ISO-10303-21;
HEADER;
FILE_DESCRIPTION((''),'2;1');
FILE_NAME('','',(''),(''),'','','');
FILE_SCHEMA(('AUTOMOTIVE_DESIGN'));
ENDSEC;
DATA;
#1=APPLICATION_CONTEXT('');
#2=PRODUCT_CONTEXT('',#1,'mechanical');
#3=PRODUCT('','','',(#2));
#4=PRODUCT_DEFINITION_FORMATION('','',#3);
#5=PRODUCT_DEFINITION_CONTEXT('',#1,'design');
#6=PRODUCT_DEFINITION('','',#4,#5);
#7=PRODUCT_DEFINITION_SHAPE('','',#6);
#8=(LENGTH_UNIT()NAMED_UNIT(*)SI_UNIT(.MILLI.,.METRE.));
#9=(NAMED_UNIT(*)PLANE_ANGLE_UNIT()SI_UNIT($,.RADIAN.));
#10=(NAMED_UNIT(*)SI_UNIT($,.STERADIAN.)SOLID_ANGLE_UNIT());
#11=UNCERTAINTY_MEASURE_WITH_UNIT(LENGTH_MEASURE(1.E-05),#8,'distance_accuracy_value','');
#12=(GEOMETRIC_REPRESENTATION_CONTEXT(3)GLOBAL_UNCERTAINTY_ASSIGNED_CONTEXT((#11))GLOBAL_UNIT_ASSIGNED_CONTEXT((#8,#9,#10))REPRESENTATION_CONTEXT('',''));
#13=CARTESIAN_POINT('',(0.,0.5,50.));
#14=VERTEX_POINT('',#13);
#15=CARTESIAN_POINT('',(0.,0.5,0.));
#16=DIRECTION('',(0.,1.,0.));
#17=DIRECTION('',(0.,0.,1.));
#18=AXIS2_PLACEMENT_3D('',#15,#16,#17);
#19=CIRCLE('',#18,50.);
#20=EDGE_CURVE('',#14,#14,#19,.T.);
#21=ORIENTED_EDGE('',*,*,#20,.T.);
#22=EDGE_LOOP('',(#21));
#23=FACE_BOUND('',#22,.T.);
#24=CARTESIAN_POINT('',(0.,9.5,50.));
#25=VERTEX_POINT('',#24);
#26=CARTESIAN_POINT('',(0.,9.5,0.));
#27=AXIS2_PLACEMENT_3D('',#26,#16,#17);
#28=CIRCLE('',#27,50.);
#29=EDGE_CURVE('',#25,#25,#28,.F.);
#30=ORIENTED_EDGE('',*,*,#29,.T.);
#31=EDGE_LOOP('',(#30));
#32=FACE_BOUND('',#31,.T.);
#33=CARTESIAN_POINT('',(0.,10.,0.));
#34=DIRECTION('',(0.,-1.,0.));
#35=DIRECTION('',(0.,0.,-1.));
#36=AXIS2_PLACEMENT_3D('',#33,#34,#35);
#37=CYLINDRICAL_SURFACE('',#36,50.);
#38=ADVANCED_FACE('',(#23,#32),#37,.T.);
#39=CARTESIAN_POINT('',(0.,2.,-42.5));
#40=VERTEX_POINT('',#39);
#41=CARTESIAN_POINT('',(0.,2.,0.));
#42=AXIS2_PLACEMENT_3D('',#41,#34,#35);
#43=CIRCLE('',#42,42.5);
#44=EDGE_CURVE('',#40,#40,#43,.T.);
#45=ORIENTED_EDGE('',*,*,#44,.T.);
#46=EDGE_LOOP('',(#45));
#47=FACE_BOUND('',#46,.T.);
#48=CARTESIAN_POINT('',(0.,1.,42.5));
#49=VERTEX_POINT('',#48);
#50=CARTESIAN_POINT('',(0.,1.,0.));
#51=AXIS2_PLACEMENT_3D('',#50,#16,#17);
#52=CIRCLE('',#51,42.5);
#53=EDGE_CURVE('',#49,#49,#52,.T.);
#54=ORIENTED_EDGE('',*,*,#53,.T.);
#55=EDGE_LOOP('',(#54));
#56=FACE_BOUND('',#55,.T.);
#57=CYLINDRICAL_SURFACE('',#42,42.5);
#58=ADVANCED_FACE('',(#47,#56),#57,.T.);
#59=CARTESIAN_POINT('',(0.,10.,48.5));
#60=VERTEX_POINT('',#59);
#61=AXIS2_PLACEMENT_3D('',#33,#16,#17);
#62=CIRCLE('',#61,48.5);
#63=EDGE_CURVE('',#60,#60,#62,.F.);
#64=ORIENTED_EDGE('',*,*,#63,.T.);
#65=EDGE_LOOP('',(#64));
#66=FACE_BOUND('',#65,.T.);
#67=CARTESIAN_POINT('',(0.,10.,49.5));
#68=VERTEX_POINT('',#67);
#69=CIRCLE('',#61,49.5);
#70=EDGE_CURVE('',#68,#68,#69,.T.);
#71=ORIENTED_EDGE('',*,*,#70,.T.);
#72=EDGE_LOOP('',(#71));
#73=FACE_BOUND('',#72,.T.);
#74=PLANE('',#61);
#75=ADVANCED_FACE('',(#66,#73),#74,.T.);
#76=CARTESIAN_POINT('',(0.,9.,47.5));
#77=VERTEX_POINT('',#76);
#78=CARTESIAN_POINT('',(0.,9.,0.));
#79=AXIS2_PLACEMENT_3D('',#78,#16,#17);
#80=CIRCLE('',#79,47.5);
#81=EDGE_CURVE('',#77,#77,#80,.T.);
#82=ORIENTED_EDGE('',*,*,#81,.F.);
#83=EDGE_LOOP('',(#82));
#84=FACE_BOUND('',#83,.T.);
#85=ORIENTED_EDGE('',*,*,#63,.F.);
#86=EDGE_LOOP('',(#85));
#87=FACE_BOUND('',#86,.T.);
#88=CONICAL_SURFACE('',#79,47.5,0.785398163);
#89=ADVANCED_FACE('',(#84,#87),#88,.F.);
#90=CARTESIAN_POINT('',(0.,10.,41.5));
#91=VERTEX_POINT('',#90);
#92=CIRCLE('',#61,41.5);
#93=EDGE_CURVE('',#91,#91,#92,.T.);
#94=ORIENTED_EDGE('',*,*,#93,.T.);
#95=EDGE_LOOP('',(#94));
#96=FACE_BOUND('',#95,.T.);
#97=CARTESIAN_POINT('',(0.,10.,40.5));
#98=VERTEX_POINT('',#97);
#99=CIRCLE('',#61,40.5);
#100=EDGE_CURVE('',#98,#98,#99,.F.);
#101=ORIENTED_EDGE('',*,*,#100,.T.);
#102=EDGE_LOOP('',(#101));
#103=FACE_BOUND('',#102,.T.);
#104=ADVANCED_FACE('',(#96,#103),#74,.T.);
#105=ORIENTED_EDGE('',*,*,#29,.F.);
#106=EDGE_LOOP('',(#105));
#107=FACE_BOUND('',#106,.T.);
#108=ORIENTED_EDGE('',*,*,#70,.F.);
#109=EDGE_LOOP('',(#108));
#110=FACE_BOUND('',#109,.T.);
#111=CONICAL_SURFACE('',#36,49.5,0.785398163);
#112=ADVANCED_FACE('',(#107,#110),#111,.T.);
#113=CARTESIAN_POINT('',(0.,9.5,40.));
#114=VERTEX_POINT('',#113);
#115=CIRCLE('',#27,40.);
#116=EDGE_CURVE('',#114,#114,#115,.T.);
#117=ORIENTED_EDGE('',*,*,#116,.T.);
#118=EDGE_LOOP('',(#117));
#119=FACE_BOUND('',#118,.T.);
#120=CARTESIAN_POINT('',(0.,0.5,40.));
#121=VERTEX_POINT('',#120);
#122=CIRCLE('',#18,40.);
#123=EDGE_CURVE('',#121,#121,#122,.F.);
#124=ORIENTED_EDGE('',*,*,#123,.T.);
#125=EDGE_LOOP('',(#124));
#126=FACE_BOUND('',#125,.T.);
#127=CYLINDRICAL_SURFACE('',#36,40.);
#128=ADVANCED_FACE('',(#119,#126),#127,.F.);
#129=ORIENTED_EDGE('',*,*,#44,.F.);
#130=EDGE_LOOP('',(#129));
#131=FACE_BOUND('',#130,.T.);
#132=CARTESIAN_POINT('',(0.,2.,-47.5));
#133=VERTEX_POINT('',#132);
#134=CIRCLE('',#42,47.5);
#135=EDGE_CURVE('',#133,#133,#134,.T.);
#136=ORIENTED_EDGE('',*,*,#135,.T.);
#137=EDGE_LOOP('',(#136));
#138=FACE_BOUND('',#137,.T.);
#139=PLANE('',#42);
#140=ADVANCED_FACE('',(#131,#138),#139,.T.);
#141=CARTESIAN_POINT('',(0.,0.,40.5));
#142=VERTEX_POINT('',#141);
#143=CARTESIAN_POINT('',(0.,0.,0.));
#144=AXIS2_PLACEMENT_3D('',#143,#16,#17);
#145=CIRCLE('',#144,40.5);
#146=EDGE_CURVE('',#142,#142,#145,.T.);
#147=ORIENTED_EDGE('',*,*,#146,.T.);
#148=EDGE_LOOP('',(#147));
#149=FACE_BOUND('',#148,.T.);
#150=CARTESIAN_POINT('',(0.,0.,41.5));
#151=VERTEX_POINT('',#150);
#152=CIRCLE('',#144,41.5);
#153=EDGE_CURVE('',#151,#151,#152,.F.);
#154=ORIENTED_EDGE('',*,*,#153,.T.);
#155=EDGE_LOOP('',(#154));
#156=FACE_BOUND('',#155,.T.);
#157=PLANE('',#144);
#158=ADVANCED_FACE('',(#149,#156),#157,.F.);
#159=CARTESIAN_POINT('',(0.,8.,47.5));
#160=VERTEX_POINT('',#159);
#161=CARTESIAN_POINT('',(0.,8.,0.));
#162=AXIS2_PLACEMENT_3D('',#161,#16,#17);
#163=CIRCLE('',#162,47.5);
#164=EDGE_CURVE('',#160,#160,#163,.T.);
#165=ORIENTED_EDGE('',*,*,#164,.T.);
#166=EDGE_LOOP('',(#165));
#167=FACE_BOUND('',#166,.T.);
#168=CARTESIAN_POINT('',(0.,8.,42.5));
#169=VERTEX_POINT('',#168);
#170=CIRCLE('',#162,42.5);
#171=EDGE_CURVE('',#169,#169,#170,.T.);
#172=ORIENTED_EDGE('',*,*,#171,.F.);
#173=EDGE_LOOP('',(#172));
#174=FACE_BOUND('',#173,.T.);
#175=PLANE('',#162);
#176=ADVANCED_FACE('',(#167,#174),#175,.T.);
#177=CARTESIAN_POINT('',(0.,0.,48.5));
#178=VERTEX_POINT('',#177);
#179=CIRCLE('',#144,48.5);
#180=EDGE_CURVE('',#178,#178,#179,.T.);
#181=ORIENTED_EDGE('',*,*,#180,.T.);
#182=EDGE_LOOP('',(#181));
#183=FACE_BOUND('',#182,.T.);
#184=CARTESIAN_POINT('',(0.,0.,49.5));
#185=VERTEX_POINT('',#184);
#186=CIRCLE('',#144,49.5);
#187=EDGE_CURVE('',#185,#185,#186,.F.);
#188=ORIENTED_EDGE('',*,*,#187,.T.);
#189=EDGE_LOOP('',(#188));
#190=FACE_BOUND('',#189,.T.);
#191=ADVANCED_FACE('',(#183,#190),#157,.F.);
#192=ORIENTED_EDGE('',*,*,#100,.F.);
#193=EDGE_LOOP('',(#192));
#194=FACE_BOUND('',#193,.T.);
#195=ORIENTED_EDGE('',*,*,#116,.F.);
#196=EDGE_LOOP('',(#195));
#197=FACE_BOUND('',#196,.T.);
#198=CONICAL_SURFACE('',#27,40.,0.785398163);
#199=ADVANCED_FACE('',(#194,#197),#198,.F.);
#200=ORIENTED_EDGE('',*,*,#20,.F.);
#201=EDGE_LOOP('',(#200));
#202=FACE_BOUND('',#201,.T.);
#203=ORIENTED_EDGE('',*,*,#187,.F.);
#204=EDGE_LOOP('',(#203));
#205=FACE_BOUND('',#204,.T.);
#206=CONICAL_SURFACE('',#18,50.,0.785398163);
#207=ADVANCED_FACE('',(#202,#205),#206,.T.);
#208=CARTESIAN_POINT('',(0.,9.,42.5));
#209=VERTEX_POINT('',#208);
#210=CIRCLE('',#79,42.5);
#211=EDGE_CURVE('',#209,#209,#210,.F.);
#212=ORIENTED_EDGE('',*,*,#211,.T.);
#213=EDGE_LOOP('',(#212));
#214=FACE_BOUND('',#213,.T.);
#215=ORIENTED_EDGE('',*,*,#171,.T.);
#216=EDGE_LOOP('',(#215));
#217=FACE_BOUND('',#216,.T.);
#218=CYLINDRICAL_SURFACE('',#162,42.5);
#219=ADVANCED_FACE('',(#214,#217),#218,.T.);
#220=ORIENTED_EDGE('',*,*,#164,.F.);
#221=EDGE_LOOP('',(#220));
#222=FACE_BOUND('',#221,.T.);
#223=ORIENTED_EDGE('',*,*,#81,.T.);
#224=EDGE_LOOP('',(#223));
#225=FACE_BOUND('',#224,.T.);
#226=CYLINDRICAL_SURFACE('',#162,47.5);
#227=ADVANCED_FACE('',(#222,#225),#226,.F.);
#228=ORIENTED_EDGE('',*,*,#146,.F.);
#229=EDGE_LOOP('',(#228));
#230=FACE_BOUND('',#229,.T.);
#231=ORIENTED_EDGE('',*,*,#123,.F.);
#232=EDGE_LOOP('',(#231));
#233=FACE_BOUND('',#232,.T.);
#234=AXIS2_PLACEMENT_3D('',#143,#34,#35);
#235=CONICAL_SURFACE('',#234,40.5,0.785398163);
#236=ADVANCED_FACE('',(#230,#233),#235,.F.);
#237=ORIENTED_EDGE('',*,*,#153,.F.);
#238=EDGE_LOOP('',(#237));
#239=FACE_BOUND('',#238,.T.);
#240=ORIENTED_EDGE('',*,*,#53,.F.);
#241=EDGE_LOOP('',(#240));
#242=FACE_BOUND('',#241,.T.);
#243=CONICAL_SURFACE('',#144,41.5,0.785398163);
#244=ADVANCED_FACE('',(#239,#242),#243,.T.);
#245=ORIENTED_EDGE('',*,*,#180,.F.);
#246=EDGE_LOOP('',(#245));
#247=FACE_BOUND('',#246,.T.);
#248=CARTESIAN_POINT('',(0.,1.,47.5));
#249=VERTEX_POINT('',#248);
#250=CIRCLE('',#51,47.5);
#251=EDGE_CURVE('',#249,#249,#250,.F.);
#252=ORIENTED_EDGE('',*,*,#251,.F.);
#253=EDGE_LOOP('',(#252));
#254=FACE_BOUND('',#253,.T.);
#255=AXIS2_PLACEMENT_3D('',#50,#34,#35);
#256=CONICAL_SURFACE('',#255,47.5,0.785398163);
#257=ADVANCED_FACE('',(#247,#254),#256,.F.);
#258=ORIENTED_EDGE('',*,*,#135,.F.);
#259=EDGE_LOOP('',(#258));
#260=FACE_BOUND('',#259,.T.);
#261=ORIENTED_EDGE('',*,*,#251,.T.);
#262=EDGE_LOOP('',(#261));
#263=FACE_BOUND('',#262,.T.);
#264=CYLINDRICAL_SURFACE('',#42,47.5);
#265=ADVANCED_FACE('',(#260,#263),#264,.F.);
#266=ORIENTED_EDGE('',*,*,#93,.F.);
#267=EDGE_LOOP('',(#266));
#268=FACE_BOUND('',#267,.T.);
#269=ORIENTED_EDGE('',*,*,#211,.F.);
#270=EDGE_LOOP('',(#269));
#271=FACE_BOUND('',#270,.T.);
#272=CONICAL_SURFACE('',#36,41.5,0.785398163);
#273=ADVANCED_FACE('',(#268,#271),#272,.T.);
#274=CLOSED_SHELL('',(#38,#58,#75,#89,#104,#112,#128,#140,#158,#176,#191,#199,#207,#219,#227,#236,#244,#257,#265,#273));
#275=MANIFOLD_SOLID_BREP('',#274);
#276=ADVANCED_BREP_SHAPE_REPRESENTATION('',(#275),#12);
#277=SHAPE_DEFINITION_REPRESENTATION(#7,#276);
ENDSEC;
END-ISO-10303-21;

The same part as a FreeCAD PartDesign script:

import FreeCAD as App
import Part
import Sketcher
from FreeCAD import Vector


def edges_at(feature, points):
    """Names of the edges that pass closest to the given points."""
    edges = feature.Shape.Edges
    near = lambda p: min(range(len(edges)), key=lambda i: edges[i].distToShape(Part.Vertex(*p))[0])
    return sorted({f"Edge{near(p) + 1}" for p in points})

doc = App.newDocument("Part")
body = doc.addObject("PartDesign::Body", "Body")

sketch1 = body.newObject("Sketcher::SketchObject", "Sketch")
sketch1.AttachmentSupport = (doc.getObject("XZ_Plane"), [""])
sketch1.MapMode = "FlatFace"
sketch1.addGeometry([
    Part.Circle(Vector(0, 0, 0), Vector(0, 0, 1), 50),
    Part.Circle(Vector(0, 0, 0), Vector(0, 0, 1), 40),
], False)
sketch1.addConstraint([
    Sketcher.Constraint("Coincident", 0, 3, -1, 1),
    Sketcher.Constraint("Coincident", 1, 3, -1, 1),
    Sketcher.Constraint("Diameter", 0, 100.0),
    Sketcher.Constraint("Diameter", 1, 80.0),
])
pad1 = body.newObject("PartDesign::Pad", "Pad")
pad1.Profile = sketch1
pad1.Length = 10
pad1.Reversed = True
doc.recompute()

chamfer = body.newObject("PartDesign::Chamfer", "Chamfer")
chamfer.Base = (pad1, edges_at(pad1, [
    (-50, 0, 0),
    (-50, 10, 0),
    (-40, 0, 0),
    (-40, 10, 0),
]))
chamfer.Size = 0.5

sketch2 = body.newObject("Sketcher::SketchObject", "Sketch001")
sketch2.AttachmentSupport = (doc.getObject("XZ_Plane"), [""])
sketch2.MapMode = "FlatFace"
sketch2.AttachmentOffset = App.Placement(Vector(0, 0, -10), App.Rotation())
sketch2.addGeometry([
    Part.Circle(Vector(0, 0, 0), Vector(0, 0, 1), 48),
    Part.Circle(Vector(0, 0, 0), Vector(0, 0, 1), 42),
], False)
sketch2.addConstraint([
    Sketcher.Constraint("Coincident", 0, 3, -1, 1),
    Sketcher.Constraint("Coincident", 1, 3, -1, 1),
    Sketcher.Constraint("Diameter", 0, 95.0),
    Sketcher.Constraint("Diameter", 1, 85.0),
])
pocket1 = body.newObject("PartDesign::Pocket", "Pocket")
pocket1.Profile = sketch2
pocket1.Length = 2
pocket1.Reversed = True
doc.recompute()

chamfer2 = body.newObject("PartDesign::Chamfer", "Chamfer001")
chamfer2.Base = (pocket1, edges_at(pocket1, [(-47.5, 10, 0), (-42.5, 10, 0)]))
chamfer2.Size = 1

sketch3 = body.newObject("Sketcher::SketchObject", "Sketch002")
sketch3.AttachmentSupport = (doc.getObject("XZ_Plane"), [""])
sketch3.MapMode = "FlatFace"
sketch3.addGeometry([
    Part.Circle(Vector(0, 0, 0), Vector(0, 0, 1), 48),
    Part.Circle(Vector(0, 0, 0), Vector(0, 0, 1), 42),
], False)
sketch3.addConstraint([
    Sketcher.Constraint("Coincident", 0, 3, -1, 1),
    Sketcher.Constraint("Coincident", 1, 3, -1, 1),
    Sketcher.Constraint("Diameter", 0, 95.0),
    Sketcher.Constraint("Diameter", 1, 85.0),
])
pocket2 = body.newObject("PartDesign::Pocket", "Pocket001")
pocket2.Profile = sketch3
pocket2.Length = 2
doc.recompute()

chamfer3 = body.newObject("PartDesign::Chamfer", "Chamfer002")
chamfer3.Base = (pocket2, edges_at(pocket2, [(-47.5, 0, 0), (-42.5, 0, 0)]))
chamfer3.Size = 1

doc.recompute()
